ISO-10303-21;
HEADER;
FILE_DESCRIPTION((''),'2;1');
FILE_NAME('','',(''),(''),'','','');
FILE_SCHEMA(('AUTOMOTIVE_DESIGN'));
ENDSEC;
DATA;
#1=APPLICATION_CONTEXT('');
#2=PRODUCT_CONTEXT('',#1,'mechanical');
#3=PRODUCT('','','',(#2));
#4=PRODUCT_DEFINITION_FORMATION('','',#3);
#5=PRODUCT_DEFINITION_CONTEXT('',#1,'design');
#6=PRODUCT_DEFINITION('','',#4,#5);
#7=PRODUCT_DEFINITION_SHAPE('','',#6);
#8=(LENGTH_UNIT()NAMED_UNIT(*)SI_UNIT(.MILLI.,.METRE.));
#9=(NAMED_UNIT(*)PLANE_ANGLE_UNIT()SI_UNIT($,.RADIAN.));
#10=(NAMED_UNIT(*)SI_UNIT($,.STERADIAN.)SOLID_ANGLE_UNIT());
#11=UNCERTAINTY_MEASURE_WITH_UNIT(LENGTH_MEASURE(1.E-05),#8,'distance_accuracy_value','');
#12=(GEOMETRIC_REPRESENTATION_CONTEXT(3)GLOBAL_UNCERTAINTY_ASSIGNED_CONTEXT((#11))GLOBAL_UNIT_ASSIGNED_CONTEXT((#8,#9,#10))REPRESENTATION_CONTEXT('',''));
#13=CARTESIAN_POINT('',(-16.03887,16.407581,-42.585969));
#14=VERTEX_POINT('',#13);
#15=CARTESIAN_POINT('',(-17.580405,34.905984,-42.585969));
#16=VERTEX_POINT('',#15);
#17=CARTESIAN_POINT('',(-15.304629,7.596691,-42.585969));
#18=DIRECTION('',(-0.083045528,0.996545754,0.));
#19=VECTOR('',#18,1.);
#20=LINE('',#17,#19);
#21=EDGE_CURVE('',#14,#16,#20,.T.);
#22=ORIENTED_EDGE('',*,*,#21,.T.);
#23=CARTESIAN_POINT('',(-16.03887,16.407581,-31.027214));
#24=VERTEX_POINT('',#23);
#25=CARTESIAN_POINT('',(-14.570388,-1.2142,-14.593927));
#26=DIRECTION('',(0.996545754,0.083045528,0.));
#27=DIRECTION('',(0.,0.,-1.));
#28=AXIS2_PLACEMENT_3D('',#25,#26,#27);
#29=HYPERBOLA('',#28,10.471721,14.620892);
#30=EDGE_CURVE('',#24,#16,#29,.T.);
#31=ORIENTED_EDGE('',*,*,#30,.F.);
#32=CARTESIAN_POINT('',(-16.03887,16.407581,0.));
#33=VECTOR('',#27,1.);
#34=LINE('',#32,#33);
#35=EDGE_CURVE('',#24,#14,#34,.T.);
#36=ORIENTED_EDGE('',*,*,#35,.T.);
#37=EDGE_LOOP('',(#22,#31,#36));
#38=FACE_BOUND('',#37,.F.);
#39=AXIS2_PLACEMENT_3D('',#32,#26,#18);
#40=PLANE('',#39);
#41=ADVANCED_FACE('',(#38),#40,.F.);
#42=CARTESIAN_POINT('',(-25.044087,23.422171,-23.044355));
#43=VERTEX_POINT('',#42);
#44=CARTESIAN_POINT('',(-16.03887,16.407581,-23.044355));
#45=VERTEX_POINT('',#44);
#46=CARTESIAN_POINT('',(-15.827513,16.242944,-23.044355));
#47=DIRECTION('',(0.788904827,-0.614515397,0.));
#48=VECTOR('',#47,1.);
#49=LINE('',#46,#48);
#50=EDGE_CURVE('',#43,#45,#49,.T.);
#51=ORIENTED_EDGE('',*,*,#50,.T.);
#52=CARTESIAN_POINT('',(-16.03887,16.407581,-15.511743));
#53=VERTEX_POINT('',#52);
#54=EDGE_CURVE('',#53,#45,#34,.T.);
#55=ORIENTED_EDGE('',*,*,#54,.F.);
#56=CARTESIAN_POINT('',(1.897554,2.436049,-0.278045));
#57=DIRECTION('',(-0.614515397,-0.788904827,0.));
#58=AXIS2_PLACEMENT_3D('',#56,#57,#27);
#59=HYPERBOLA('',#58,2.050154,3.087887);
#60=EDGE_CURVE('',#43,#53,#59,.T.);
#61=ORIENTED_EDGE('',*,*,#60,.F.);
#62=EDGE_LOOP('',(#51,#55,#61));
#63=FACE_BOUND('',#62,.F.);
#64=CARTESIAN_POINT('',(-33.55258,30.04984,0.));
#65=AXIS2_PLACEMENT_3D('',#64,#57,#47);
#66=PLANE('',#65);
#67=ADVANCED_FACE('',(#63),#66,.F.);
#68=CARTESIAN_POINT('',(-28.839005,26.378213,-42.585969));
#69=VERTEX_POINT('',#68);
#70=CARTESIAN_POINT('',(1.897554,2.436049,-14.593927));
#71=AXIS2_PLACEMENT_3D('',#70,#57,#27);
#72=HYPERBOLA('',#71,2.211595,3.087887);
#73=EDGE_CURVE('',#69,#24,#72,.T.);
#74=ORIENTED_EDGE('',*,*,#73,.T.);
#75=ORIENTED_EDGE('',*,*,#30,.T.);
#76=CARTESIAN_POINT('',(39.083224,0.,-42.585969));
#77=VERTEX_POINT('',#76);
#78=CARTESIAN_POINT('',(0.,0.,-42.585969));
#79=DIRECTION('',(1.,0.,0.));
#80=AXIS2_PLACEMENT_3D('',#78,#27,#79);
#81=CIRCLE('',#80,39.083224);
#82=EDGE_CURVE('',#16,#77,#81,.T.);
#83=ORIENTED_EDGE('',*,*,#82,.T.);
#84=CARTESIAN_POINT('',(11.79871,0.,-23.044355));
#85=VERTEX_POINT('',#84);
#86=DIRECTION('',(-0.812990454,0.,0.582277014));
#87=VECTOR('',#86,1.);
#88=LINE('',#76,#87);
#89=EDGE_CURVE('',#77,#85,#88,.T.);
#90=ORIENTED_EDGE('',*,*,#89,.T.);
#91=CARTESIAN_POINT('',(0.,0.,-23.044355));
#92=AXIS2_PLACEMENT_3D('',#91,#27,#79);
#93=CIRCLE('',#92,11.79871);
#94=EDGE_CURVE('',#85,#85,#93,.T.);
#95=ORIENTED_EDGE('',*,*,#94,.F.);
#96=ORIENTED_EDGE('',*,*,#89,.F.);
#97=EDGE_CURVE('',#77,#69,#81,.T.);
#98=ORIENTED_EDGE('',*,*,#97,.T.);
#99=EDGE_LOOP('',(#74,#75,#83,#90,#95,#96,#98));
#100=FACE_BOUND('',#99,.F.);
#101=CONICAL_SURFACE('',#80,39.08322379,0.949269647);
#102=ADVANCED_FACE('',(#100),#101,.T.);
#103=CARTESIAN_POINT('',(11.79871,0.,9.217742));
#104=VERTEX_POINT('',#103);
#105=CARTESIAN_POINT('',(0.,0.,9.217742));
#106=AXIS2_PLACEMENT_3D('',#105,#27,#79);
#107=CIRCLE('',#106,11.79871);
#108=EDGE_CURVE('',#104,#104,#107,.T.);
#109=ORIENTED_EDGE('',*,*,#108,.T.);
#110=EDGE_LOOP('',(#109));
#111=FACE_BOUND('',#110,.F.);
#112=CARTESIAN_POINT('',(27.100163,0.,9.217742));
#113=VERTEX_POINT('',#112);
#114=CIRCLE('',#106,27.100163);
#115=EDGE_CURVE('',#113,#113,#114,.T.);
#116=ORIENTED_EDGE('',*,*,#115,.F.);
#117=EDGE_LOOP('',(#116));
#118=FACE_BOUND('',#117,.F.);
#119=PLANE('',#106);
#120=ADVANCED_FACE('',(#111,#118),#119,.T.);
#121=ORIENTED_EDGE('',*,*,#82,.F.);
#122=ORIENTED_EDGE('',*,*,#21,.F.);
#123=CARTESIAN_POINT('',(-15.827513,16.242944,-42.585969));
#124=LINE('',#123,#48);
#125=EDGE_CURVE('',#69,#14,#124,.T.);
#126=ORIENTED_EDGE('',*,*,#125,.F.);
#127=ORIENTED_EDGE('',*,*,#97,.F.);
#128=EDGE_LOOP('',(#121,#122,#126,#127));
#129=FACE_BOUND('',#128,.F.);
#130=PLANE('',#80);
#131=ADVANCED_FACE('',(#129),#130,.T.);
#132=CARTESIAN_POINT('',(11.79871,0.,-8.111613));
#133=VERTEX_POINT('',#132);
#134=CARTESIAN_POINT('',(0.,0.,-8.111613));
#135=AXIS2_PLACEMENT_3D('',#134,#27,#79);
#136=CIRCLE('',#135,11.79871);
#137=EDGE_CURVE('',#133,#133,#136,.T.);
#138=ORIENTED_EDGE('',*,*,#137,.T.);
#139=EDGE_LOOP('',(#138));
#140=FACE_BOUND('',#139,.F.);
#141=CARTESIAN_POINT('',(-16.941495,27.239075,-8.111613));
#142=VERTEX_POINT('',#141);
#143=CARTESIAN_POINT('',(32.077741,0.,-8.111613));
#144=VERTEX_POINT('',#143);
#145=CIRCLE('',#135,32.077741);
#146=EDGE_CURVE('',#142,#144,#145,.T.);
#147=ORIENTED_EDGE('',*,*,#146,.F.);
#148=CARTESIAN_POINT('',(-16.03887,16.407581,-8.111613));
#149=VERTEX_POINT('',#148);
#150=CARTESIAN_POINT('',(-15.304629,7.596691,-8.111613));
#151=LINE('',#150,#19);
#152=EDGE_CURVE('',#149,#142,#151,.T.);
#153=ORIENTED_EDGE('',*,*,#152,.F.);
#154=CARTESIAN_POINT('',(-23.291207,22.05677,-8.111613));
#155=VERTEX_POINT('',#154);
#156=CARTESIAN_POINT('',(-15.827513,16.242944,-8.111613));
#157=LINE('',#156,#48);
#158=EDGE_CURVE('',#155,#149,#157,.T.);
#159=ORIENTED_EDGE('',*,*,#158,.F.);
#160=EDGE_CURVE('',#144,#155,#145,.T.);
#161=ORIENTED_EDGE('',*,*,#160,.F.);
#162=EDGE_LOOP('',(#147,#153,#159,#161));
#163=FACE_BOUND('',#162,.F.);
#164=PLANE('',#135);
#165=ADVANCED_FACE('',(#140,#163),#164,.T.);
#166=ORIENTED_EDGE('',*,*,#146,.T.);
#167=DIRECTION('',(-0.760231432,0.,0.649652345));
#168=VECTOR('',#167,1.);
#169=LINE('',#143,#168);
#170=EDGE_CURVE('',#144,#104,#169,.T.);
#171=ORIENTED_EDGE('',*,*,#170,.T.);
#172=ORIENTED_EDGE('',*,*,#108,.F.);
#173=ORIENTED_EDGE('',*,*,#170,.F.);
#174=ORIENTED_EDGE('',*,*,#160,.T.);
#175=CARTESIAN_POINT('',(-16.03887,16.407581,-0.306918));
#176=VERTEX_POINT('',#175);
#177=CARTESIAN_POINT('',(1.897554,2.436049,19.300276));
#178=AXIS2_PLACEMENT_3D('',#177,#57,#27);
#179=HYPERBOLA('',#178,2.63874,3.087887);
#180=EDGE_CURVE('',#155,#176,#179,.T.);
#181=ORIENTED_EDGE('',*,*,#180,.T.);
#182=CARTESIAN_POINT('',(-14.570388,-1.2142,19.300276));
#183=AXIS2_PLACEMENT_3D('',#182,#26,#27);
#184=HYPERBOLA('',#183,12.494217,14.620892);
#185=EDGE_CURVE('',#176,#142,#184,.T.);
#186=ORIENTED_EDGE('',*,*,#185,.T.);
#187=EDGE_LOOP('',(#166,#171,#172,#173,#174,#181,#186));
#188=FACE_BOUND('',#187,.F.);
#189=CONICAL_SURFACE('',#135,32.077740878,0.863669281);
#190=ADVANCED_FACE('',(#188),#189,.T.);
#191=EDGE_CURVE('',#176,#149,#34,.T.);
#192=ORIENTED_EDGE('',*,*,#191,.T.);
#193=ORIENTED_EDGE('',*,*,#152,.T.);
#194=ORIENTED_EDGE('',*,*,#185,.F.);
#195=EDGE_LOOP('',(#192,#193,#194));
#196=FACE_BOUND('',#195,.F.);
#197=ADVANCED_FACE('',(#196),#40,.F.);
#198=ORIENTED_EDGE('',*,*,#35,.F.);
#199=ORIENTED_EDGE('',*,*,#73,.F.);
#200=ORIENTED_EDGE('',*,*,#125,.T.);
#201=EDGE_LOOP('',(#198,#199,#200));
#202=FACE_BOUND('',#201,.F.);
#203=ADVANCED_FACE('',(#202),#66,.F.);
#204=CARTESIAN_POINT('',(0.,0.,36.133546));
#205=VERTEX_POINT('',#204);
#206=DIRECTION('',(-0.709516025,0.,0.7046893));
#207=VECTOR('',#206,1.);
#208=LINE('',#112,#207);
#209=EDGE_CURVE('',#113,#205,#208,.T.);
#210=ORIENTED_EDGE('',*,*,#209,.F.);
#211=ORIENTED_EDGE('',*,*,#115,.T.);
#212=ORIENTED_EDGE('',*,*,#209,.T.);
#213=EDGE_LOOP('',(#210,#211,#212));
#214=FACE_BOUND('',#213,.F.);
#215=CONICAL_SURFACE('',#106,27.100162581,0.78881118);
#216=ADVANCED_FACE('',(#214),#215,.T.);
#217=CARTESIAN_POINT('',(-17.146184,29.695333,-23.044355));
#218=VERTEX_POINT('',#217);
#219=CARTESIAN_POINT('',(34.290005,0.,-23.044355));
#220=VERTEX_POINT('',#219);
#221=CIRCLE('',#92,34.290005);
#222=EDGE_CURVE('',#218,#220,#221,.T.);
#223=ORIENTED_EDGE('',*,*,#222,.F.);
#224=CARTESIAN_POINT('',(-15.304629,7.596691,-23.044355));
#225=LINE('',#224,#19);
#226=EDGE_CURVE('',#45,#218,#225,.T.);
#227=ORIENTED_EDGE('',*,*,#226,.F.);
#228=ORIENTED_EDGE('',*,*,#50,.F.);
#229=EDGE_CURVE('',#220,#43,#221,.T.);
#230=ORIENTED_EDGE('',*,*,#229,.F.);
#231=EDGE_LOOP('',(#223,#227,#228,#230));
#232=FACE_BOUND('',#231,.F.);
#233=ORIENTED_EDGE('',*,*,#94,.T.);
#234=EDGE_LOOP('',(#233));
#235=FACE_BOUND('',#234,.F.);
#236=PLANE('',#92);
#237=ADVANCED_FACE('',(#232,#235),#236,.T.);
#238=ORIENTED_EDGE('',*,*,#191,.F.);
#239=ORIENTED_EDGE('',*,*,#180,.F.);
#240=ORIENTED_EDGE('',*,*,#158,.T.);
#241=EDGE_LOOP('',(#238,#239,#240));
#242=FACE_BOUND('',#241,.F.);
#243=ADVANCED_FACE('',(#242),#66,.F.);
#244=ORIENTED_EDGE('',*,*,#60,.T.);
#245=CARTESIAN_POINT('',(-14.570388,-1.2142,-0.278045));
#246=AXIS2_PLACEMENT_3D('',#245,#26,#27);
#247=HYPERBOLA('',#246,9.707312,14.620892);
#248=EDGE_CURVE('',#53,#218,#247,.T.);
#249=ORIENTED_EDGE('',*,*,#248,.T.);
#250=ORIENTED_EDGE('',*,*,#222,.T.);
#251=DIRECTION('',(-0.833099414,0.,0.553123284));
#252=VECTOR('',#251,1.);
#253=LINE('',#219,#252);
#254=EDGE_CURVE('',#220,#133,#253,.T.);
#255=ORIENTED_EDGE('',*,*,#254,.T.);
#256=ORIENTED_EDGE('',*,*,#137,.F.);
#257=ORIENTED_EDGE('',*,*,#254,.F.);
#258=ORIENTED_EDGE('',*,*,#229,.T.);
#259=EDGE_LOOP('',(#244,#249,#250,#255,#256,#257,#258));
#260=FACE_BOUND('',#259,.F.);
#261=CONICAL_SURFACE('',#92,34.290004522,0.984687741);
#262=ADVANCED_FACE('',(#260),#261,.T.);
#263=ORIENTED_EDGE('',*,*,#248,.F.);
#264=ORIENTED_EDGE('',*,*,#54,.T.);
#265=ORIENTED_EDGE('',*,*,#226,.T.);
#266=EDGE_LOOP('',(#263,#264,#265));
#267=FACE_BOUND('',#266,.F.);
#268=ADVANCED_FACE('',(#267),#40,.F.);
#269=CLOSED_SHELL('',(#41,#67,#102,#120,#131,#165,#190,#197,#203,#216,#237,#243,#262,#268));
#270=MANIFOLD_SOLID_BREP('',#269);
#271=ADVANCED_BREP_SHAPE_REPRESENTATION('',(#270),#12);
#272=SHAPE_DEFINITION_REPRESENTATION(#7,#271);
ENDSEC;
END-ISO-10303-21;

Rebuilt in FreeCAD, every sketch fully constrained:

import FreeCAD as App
import Part
import Sketcher
from FreeCAD import Vector


def add_polygon(sketch, points):
    """Adds a closed chain of lines whose ends are joined by coincident constraints."""
    first, n = sketch.GeometryCount, len(points)
    for a, b in zip(points, points[1:] + points[:1]):
        sketch.addGeometry(Part.LineSegment(App.Vector(*a, 0), App.Vector(*b, 0)), False)
    for i in range(n):
        sketch.addConstraint(Sketcher.Constraint("Coincident", first + i, 2, first + (i + 1) % n, 1))

doc = App.newDocument("Part")
body = doc.addObject("PartDesign::Body", "Body")

# Sketch on XZ plane
sketch1 = doc.addObject("Sketcher::SketchObject", "Sketch")
body.addObject(sketch1)
sketch1.AttachmentSupport = (doc.XZ_Plane, [""])
sketch1.MapMode = "FlatFace"
add_polygon(sketch1, [(0, 36.133546), (0, -42.585969), (39.083224, -42.585969), (11.79871, -23.044355), (34.290005, -23.044355), (11.79871, -8.111613), (32.077741, -8.111613), (11.79871, 9.217742), (27.100163, 9.217742)])  # lines 0-8
sketch1.addConstraint([
    Sketcher.Constraint("Vertical", 0),
    Sketcher.Constraint("Horizontal", 1),
    Sketcher.Constraint("Horizontal", 3),
    Sketcher.Constraint("Horizontal", 5),
    Sketcher.Constraint("Horizontal", 7),
    Sketcher.Constraint("PointOnObject", 0, 2, -2),
    Sketcher.Constraint("Vertical", 2, 2, 4, 2),
    Sketcher.Constraint("Vertical", 4, 2, 6, 2),
    Sketcher.Constraint("DistanceX", 5, 1, 5, 2, 20.279031),
    Sketcher.Constraint("DistanceY", 2, 2, 8, 2, 59.177902),
    Sketcher.Constraint("Distance", 8, 38.195279),
    Sketcher.Constraint("DistanceX", 1, 1, 1, 2, 39.083224),
    Sketcher.Constraint("DistanceX", 3, 1, 3, 2, 22.491295),
    Sketcher.Constraint("DistanceX", 7, 1, 7, 2, 15.301453),
    Sketcher.Constraint("DistanceY", 0, 2, 0, 1, 78.719515),
    Sketcher.Constraint("DistanceY", 0, 2, -1, 1, 42.585969),
    Sketcher.Constraint("DistanceX", -1, 1, 2, 2, 11.79871),
    Sketcher.Constraint("DistanceY", 4, 2, 8, 2, 44.245159),
])
revolution = doc.addObject("PartDesign::Revolution", "Revolution")
body.addObject(revolution)
revolution.Profile = sketch1
revolution.ReferenceAxis = (sketch1, ["V_Axis"])
revolution.Angle = 360

# Sketch on XY plane
sketch2 = doc.addObject("Sketcher::SketchObject", "Sketch001")
body.addObject(sketch2)
sketch2.AttachmentSupport = (doc.XY_Plane, [""])
sketch2.MapMode = "FlatFace"
add_polygon(sketch2, [(-17.88242, 38.53016), (-33.55258, 30.04984), (-16.03887, 16.407581)])  # lines 0-2
sketch2.addConstraint([
    Sketcher.Constraint("Distance", 0, 17.81768),
    Sketcher.Constraint("Distance", 2, 22.19926),
    Sketcher.Constraint("DistanceX", 0, 2, -1, 1, 33.55258),
    Sketcher.Constraint("DistanceY", -1, 1, 0, 2, 30.04984),
    Sketcher.Constraint("DistanceX", 1, 2, -1, 1, 16.03887),
    Sketcher.Constraint("DistanceY", -1, 1, 1, 2, 16.407581),
])
pocket1 = doc.addObject("PartDesign::Pocket", "Pocket")
body.addObject(pocket1)
pocket1.Profile = sketch2
pocket1.Type = "ThroughAll"

doc.recompute()
